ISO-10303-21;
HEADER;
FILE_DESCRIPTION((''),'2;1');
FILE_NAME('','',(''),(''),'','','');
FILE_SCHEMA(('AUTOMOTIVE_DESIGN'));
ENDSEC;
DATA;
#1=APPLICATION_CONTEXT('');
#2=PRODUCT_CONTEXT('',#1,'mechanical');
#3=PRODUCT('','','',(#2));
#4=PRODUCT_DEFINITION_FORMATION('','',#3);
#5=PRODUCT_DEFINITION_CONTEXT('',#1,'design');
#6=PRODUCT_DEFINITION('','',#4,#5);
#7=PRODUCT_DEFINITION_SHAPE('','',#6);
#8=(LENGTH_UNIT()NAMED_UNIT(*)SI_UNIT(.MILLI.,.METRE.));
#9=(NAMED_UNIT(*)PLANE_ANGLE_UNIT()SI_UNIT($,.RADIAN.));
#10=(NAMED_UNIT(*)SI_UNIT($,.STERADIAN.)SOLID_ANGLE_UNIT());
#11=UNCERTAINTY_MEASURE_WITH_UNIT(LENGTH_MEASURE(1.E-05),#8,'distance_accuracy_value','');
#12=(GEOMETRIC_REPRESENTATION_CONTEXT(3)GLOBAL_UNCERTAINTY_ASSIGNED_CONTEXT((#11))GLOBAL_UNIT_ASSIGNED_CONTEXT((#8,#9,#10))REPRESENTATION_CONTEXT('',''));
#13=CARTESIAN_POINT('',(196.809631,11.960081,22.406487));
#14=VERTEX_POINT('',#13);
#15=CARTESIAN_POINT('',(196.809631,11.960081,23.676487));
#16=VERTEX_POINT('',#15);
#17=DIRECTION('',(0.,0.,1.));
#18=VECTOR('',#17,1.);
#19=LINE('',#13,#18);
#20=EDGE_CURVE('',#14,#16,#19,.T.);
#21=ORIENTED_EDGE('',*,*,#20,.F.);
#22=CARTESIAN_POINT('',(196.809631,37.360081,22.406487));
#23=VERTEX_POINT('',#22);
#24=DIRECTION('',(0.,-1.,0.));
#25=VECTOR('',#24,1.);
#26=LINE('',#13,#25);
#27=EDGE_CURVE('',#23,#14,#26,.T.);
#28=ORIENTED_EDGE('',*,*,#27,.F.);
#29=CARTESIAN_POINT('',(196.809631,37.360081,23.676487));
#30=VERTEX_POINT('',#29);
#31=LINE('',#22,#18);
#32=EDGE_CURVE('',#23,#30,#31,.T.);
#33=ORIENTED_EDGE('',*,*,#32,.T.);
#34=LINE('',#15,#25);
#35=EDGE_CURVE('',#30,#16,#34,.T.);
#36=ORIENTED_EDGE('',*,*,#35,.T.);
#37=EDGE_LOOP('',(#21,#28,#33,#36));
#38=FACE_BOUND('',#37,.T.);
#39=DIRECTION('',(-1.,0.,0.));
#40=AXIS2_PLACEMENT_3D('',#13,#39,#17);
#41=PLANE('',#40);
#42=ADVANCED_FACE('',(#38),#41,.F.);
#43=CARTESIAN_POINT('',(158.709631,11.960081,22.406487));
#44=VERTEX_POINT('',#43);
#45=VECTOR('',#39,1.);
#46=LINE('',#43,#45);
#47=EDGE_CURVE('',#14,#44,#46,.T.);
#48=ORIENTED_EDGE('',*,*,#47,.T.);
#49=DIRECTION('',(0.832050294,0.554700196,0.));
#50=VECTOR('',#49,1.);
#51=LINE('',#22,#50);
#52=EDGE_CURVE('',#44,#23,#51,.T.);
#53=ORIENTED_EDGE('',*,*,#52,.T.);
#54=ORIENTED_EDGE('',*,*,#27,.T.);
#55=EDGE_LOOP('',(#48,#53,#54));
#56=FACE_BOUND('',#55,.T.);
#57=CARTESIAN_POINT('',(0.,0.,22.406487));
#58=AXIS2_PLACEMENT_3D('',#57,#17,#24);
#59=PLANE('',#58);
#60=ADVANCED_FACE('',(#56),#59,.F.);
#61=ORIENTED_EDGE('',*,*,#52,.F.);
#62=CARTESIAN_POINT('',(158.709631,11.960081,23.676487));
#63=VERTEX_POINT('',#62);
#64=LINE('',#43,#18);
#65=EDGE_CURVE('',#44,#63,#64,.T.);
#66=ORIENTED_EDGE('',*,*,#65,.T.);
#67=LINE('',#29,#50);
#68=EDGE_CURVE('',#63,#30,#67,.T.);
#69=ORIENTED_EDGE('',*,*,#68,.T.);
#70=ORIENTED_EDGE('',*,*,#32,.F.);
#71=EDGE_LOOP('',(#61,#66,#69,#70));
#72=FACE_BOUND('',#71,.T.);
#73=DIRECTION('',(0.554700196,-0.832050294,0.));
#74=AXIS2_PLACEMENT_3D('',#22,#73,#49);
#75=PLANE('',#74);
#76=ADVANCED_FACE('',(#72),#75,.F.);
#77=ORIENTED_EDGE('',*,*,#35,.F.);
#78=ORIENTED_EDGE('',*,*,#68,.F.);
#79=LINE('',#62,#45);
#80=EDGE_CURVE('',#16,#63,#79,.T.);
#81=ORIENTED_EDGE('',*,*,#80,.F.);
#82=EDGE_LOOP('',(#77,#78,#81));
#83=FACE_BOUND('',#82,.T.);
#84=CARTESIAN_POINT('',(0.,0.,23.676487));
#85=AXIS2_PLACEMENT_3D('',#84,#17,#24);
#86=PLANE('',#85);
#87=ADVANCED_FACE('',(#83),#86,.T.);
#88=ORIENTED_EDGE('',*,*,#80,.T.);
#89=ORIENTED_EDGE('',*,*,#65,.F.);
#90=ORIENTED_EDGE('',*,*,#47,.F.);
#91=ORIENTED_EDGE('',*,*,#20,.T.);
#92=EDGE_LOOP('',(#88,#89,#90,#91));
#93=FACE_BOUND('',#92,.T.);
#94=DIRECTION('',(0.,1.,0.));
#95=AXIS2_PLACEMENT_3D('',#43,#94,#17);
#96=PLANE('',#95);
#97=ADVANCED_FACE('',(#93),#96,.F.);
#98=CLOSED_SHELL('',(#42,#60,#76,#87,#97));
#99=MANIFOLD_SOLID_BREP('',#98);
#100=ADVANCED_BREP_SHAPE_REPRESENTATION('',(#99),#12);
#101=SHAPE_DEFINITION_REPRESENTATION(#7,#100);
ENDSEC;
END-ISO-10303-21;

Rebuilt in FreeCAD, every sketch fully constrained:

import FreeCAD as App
import Part
import Sketcher
from FreeCAD import Vector
Q = App.Units.Quantity

doc = App.newDocument("Part")
body = doc.addObject("PartDesign::Body", "Body")

sketch1 = body.newObject("Sketcher::SketchObject", "Sketch")
sketch1.AttachmentSupport = (doc.getObject("XY_Plane"), [""])
sketch1.MapMode = "FlatFace"
sketch1.AttachmentOffset = App.Placement(Vector(0, 0, 23.676487), App.Rotation())
sketch1.addGeometry([
    Part.LineSegment(Vector(197, 37, 0), Vector(197, 12, 0)),
    Part.LineSegment(Vector(197, 12, 0), Vector(159, 12, 0)),
    Part.LineSegment(Vector(159, 12, 0), Vector(197, 37, 0)),
], False)
sketch1.addConstraint([
    Sketcher.Constraint("Coincident", 0, 2, 1, 1),
    Sketcher.Constraint("Coincident", 1, 2, 2, 1),
    Sketcher.Constraint("Coincident", 2, 2, 0, 1),
    Sketcher.Constraint("Vertical", 0),
    Sketcher.Constraint("Horizontal", 1),
    Sketcher.Constraint("DistanceY", 0, 2, 0, 1, Q("1 in")),
    Sketcher.Constraint("DistanceX", 1, 2, 1, 1, Q("1.5 in")),
    Sketcher.Constraint("DistanceX", -1, 1, 0, 2, 196.809631),
    Sketcher.Constraint("DistanceY", -1, 1, 0, 2, 11.960081),
])
pad1 = body.newObject("PartDesign::Pad", "Pad")
pad1.Profile = sketch1
pad1.Length = Q("0.05 in")
pad1.Reversed = True

doc.recompute()
